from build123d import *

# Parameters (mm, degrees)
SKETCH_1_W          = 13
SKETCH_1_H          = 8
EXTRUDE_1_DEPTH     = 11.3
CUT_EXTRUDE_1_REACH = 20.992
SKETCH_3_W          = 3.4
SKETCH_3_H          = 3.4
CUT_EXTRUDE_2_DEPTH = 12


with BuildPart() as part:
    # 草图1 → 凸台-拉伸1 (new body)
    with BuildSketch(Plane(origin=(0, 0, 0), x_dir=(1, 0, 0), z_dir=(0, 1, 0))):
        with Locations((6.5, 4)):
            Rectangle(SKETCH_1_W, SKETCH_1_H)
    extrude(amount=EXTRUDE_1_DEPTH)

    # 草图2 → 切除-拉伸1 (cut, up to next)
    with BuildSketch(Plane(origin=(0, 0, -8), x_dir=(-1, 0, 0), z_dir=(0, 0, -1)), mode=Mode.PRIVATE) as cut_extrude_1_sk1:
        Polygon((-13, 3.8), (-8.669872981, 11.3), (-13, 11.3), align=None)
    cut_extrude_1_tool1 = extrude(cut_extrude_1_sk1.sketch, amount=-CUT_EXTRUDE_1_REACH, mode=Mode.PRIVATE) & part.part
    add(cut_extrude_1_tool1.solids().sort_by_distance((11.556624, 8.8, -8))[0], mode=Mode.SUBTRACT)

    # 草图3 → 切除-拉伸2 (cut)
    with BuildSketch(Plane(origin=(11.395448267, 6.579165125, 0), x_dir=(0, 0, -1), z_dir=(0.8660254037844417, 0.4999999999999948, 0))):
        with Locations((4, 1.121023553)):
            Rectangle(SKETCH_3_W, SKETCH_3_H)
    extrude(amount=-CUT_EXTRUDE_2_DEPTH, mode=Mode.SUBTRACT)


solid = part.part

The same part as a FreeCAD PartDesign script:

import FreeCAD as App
import Part
import Sketcher
Q = App.Units.Quantity

doc = App.newDocument("Part")
body = doc.addObject("PartDesign::Body", "Body")

sketch1 = body.newObject("Sketcher::SketchObject", "Sketch")
sketch1.AttachmentSupport = (doc.getObject("XZ_Plane"), [""])
sketch1.MapMode = "FlatFace"
sketch1.addGeometry(Part.LineSegment(App.Vector(0, -8, 0), App.Vector(0, 0, 0)), False)
sketch1.addGeometry(Part.LineSegment(App.Vector(0, 0, 0), App.Vector(13, 0, 0)), False)
sketch1.addGeometry(Part.LineSegment(App.Vector(13, 0, 0), App.Vector(13, -8, 0)), False)
sketch1.addGeometry(Part.LineSegment(App.Vector(13, -8, 0), App.Vector(0, -8, 0)), False)
sketch1.addConstraint(Sketcher.Constraint("Coincident", 0, 2, 1, 1))
sketch1.addConstraint(Sketcher.Constraint("Coincident", 1, 2, 2, 1))
sketch1.addConstraint(Sketcher.Constraint("Coincident", 2, 2, 3, 1))
sketch1.addConstraint(Sketcher.Constraint("Coincident", 3, 2, 0, 1))
sketch1.addConstraint(Sketcher.Constraint("Vertical", 0))
sketch1.addConstraint(Sketcher.Constraint("Horizontal", 1))
sketch1.addConstraint(Sketcher.Constraint("Vertical", 2))
sketch1.addConstraint(Sketcher.Constraint("Horizontal", 3))
sketch1.addConstraint(Sketcher.Constraint("Coincident", 0, 2, -1, 1))
sketch1.addConstraint(Sketcher.Constraint("DistanceX", 1, 1, 1, 2, 13.0))
sketch1.addConstraint(Sketcher.Constraint("DistanceY", 0, 1, 0, 2, 8.0))
pad1 = body.newObject("PartDesign::Pad", "Pad")
pad1.Profile = sketch1
pad1.Length = 11.3
pad1.Reversed = True

sketch2 = body.newObject("Sketcher::SketchObject", "Sketch001")
sketch2.AttachmentSupport = (doc.getObject("XY_Plane"), [""])
sketch2.MapMode = "FlatFace"
sketch2.AttachmentOffset = App.Placement(App.Vector(0, 0, -8), App.Rotation())
sketch2.addGeometry(Part.LineSegment(App.Vector(13, 3.8, 0), App.Vector(8.669873, 11.3, 0)), False)
sketch2.addGeometry(Part.LineSegment(App.Vector(8.669873, 11.3, 0), App.Vector(13, 11.3, 0)), False)
sketch2.addGeometry(Part.LineSegment(App.Vector(13, 11.3, 0), App.Vector(13, 3.8, 0)), False)
sketch2.addConstraint(Sketcher.Constraint("Coincident", 0, 2, 1, 1))
sketch2.addConstraint(Sketcher.Constraint("Coincident", 1, 2, 2, 1))
sketch2.addConstraint(Sketcher.Constraint("Coincident", 2, 2, 0, 1))
sketch2.addConstraint(Sketcher.Constraint("Horizontal", 1))
sketch2.addConstraint(Sketcher.Constraint("Vertical", 2))
sketch2.addConstraint(Sketcher.Constraint("Angle", 0, Q("120 deg")))
sketch2.addConstraint(Sketcher.Constraint("DistanceY", 2, 2, 2, 1, 7.5))
sketch2.addConstraint(Sketcher.Constraint("DistanceX", -1, 1, 1, 2, 13.0))
sketch2.addConstraint(Sketcher.Constraint("DistanceY", -1, 1, 0, 2, 11.3))
pocket1 = body.newObject("PartDesign::Pocket", "Pocket")
pocket1.Profile = sketch2
pocket1.Type = "UpToFirst"
pocket1.Reversed = True

sketch3 = body.newObject("Sketcher::SketchObject", "Sketch002")
sketch3.Placement = App.Placement(App.Vector(11.395448, 6.579165, 0), App.Rotation(App.Vector(0, 0, -1), App.Vector(-0.5, 0.866025404, 0), App.Vector(0.866025404, 0.5, 0), "ZXY"))
sketch3.addGeometry(Part.LineSegment(App.Vector(2.3, 2.821024, 0), App.Vector(2.3, -0.578976, 0)), False)
sketch3.addGeometry(Part.LineSegment(App.Vector(2.3, -0.578976, 0), App.Vector(5.7, -0.578976, 0)), False)
sketch3.addGeometry(Part.LineSegment(App.Vector(5.7, -0.578976, 0), App.Vector(5.7, 2.821024, 0)), False)
sketch3.addGeometry(Part.LineSegment(App.Vector(5.7, 2.821024, 0), App.Vector(2.3, 2.821024, 0)), False)
sketch3.addConstraint(Sketcher.Constraint("Coincident", 0, 2, 1, 1))
sketch3.addConstraint(Sketcher.Constraint("Coincident", 1, 2, 2, 1))
sketch3.addConstraint(Sketcher.Constraint("Coincident", 2, 2, 3, 1))
sketch3.addConstraint(Sketcher.Constraint("Coincident", 3, 2, 0, 1))
sketch3.addConstraint(Sketcher.Constraint("Vertical", 0))
sketch3.addConstraint(Sketcher.Constraint("Horizontal", 1))
sketch3.addConstraint(Sketcher.Constraint("Vertical", 2))
sketch3.addConstraint(Sketcher.Constraint("Horizontal", 3))
sketch3.addConstraint(Sketcher.Constraint("Equal", 3, 0))
sketch3.addConstraint(Sketcher.Constraint("DistanceX", 1, 1, 1, 2, 3.4))
sketch3.addConstraint(Sketcher.Constraint("DistanceX", -1, 1, 0, 2, 2.3))
sketch3.addConstraint(Sketcher.Constraint("DistanceY", 0, 2, -1, 1, 0.578976))
pocket2 = body.newObject("PartDesign::Pocket", "Pocket001")
pocket2.Profile = sketch3
pocket2.Length = 12

doc.recompute()
